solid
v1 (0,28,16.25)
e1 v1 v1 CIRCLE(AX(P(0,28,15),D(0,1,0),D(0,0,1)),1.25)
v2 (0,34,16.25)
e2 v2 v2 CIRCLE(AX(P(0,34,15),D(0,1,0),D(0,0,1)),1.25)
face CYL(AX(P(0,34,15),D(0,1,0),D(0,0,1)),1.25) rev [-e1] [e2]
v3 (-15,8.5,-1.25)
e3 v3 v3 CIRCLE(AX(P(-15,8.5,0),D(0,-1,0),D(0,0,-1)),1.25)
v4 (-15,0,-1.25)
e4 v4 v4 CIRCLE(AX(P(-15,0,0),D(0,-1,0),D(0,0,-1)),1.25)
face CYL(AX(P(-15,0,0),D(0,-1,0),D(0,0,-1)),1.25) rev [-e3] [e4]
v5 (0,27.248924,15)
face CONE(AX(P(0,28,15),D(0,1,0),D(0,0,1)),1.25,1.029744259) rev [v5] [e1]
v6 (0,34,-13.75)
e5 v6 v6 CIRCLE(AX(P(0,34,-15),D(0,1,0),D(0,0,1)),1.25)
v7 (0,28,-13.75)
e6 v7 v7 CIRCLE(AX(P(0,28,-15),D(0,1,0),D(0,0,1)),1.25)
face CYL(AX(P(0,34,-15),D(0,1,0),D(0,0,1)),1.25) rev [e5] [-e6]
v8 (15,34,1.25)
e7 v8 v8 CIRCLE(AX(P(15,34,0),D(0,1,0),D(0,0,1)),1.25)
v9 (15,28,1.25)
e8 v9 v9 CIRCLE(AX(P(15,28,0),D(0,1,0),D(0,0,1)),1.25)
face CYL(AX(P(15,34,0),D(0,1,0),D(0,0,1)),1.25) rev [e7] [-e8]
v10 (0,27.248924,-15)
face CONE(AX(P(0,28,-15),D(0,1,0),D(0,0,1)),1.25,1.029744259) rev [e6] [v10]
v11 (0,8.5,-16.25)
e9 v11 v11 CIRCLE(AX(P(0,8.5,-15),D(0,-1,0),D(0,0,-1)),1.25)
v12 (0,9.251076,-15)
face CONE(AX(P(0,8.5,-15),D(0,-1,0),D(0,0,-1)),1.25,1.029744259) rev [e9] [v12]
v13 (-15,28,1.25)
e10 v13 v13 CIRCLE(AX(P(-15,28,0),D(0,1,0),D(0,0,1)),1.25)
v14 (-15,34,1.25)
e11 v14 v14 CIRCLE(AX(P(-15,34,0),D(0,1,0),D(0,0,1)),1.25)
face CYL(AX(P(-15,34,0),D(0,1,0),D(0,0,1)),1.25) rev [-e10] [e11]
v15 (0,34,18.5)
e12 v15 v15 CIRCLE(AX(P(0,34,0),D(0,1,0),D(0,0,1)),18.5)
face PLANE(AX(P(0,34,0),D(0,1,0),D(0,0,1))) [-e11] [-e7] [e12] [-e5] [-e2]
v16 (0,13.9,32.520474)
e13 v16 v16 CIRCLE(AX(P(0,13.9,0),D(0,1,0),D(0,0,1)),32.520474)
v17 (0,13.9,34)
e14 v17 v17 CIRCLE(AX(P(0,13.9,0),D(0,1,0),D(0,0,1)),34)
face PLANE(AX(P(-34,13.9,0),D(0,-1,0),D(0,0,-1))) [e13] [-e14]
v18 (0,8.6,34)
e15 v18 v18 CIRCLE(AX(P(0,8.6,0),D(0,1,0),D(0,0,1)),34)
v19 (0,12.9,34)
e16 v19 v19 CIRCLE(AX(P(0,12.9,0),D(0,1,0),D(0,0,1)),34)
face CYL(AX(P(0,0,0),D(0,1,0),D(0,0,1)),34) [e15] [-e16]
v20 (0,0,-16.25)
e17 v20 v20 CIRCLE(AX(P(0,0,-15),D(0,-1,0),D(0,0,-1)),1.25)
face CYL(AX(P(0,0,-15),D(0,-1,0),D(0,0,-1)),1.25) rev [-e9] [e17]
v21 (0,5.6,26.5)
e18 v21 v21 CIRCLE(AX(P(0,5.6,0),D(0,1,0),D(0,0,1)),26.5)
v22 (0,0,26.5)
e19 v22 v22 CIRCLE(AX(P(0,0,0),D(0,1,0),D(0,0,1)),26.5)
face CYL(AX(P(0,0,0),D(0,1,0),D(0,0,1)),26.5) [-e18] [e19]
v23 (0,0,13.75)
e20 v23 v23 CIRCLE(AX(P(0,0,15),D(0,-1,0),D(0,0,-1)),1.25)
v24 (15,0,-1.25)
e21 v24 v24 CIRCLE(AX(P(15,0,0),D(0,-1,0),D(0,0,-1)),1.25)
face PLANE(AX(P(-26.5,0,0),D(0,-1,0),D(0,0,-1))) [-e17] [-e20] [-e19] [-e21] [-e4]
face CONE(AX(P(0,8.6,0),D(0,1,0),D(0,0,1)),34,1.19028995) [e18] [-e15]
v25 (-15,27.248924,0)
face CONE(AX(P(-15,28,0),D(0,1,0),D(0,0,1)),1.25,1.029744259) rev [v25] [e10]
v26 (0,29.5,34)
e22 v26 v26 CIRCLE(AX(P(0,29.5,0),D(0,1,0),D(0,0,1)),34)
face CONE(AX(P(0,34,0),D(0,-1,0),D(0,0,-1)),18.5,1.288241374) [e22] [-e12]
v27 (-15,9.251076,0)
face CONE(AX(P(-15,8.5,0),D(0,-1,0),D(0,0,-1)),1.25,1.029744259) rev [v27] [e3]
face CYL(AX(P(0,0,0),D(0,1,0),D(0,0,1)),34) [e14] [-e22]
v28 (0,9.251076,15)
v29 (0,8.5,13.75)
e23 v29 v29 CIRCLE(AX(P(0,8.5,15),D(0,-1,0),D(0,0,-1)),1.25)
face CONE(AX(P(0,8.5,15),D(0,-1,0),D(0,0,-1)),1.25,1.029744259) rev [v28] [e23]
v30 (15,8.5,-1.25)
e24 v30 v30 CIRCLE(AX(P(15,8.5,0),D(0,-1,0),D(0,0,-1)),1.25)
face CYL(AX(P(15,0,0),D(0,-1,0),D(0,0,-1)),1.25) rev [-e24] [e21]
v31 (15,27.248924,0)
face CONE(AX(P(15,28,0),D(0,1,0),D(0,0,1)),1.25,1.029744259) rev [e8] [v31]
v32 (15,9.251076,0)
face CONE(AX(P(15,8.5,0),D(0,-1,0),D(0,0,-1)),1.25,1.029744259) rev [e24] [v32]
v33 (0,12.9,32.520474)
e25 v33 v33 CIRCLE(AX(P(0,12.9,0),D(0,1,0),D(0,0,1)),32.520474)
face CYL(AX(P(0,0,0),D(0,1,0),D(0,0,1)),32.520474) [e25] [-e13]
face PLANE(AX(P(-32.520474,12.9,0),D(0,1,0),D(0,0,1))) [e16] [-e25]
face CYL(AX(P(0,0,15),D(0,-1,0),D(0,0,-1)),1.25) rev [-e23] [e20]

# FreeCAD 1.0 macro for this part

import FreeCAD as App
import Part
import Sketcher

V = App.Vector
Q = App.Units.Quantity

doc = App.newDocument("Part")
body = doc.addObject("PartDesign::Body", "Body")

sketch1 = doc.addObject("Sketcher::SketchObject", "Sketch")
body.addObject(sketch1)
sketch1.AttachmentSupport = (doc.XY_Plane, [""])
sketch1.MapMode = "FlatFace"
sketch1.addGeometry([
    Part.LineSegment(V(0, 0, 0), V(0, 34, 0)),
    Part.LineSegment(V(0, 34, 0), V(-18.5, 34, 0)),
    Part.LineSegment(V(-18.5, 34, 0), V(-34, 29.5, 0)),
    Part.LineSegment(V(-34, 29.5, 0), V(-34, 13.9, 0)),
    Part.LineSegment(V(-34, 13.9, 0), V(-32.5, 13.9, 0)),
    Part.LineSegment(V(-32.5, 13.9, 0), V(-32.5, 12.9, 0)),
    Part.LineSegment(V(-32.5, 12.9, 0), V(-34, 12.9, 0)),
    Part.LineSegment(V(-34, 12.9, 0), V(-34, 8.6, 0)),
    Part.LineSegment(V(-34, 8.6, 0), V(-26.5, 5.6, 0)),
    Part.LineSegment(V(-26.5, 5.6, 0), V(-26.5, 0, 0)),
    Part.LineSegment(V(-26.5, 0, 0), V(0, 0, 0)),
], False)
sketch1.addConstraint([
    Sketcher.Constraint("Coincident", 0, 2, 1, 1),
    Sketcher.Constraint("Coincident", 1, 2, 2, 1),
    Sketcher.Constraint("Coincident", 2, 2, 3, 1),
    Sketcher.Constraint("Coincident", 3, 2, 4, 1),
    Sketcher.Constraint("Coincident", 4, 2, 5, 1),
    Sketcher.Constraint("Coincident", 5, 2, 6, 1),
    Sketcher.Constraint("Coincident", 6, 2, 7, 1),
    Sketcher.Constraint("Coincident", 7, 2, 8, 1),
    Sketcher.Constraint("Coincident", 8, 2, 9, 1),
    Sketcher.Constraint("Coincident", 9, 2, 10, 1),
    Sketcher.Constraint("Coincident", 10, 2, 0, 1),
    Sketcher.Constraint("Vertical", 0),
    Sketcher.Constraint("Horizontal", 1),
    Sketcher.Constraint("Vertical", 3),
    Sketcher.Constraint("Horizontal", 4),
    Sketcher.Constraint("Vertical", 5),
    Sketcher.Constraint("Horizontal", 6),
    Sketcher.Constraint("Vertical", 7),
    Sketcher.Constraint("Vertical", 9),
    Sketcher.Constraint("Horizontal", 10),
    Sketcher.Constraint("Coincident", 10, 2, -1, 1),
    Sketcher.Constraint("Vertical", 3, 2, 6, 2),
    Sketcher.Constraint("DistanceY", 0, 1, 0, 2, Q("34 mm")),
    Sketcher.Constraint("DistanceY", 5, 2, 5, 1, Q("1 mm")),
    Sketcher.Constraint("DistanceX", 1, 2, 1, 1, Q("18.5 mm")),
    Sketcher.Constraint("DistanceX", 10, 1, 10, 2, Q("26.5 mm")),
    Sketcher.Constraint("DistanceY", 3, 2, 3, 1, Q("15.6 mm")),
    Sketcher.Constraint("DistanceY", 7, 2, 7, 1, Q("4.3 mm")),
    Sketcher.Constraint("DistanceY", 9, 2, 9, 1, Q("5.6 mm")),
    Sketcher.Constraint("DistanceX", 2, 2, -1, 1, Q("34 mm")),
    Sketcher.Constraint("DistanceY", 8, 2, 7, 2, Q("3 mm")),
    Sketcher.Constraint("DistanceX", 4, 1, 4, 2, Q("1.479526 mm")),
])
revolution = doc.addObject("PartDesign::Revolution", "Revolution")
body.addObject(revolution)
revolution.Profile = sketch1
revolution.ReferenceAxis = (sketch1, ["V_Axis"])
revolution.Angle = 360

sketch2 = doc.addObject("Sketcher::SketchObject", "Sketch001")
body.addObject(sketch2)
sketch2.AttachmentSupport = (doc.XZ_Plane, [""])
sketch2.MapMode = "FlatFace"
sketch2.AttachmentOffset = App.Placement(V(0, 0, -34), App.Rotation())
sketch2.addGeometry([
    Part.Circle(V(0, -15, 0), V(0, 0, 1), 1.2),
    Part.Circle(V(-15, 0, 0), V(0, 0, 1), 1.2),
    Part.Circle(V(15, 0, 0), V(0, 0, 1), 1.2),
    Part.Circle(V(0, 15, 0), V(0, 0, 1), 1.2),
], False)
sketch2.addConstraint([
    Sketcher.Constraint("Equal", 0, 1),
    Sketcher.Constraint("Equal", 1, 2),
    Sketcher.Constraint("Equal", 2, 3),
    Sketcher.Constraint("Symmetric", 1, 3, 2, 3, -1, 1),
    Sketcher.Constraint("Symmetric", 0, 3, 3, 3, -1, 1),
    Sketcher.Constraint("PointOnObject", 0, 3, -2),
    Sketcher.Constraint("PointOnObject", 1, 3, -1),
    Sketcher.Constraint("Diameter", 0, Q("2.5 mm")),
    Sketcher.Constraint("DistanceY", 0, 3, -1, 1, Q("15 mm")),
    Sketcher.Constraint("DistanceX", 1, 3, -1, 1, Q("15 mm")),
])
doc.recompute()
hole = doc.addObject("PartDesign::Hole", "Hole")
body.addObject(hole)
hole.Profile = sketch2
hole.ThreadType = "None"
hole.Diameter = 2.5
hole.DepthType = "Dimension"
hole.Depth = 6
hole.DrillPoint = "Angled"
hole.DrillPointAngle = 118
hole.Reversed = True

sketch3 = doc.addObject("Sketcher::SketchObject", "Sketch002")
body.addObject(sketch3)
sketch3.AttachmentSupport = (doc.XZ_Plane, [""])
sketch3.MapMode = "FlatFace"
sketch3.addGeometry([
    Part.Circle(V(0, -15, 0), V(0, 0, 1), 1.2),
    Part.Circle(V(0, 15, 0), V(0, 0, 1), 1.2),
    Part.Circle(V(-15, 0, 0), V(0, 0, 1), 1.2),
    Part.Circle(V(15, 0, 0), V(0, 0, 1), 1.2),
], False)
sketch3.addConstraint([
    Sketcher.Constraint("Equal", 0, 1),
    Sketcher.Constraint("Equal", 1, 2),
    Sketcher.Constraint("Equal", 2, 3),
    Sketcher.Constraint("Symmetric", 0, 3, 1, 3, -1, 1),
    Sketcher.Constraint("Symmetric", 2, 3, 3, 3, -1, 1),
    Sketcher.Constraint("PointOnObject", 0, 3, -2),
    Sketcher.Constraint("PointOnObject", 2, 3, -1),
    Sketcher.Constraint("Diameter", 0, Q("2.5 mm")),
    Sketcher.Constraint("DistanceY", 0, 3, -1, 1, Q("15 mm")),
    Sketcher.Constraint("DistanceX", 2, 3, -1, 1, Q("15 mm")),
])
doc.recompute()
hole2 = doc.addObject("PartDesign::Hole", "Hole001")
body.addObject(hole2)
hole2.Profile = sketch3
hole2.ThreadType = "None"
hole2.Diameter = 2.5
hole2.DepthType = "Dimension"
hole2.Depth = 8.5
hole2.DrillPoint = "Angled"
hole2.DrillPointAngle = 118

doc.recompute()
